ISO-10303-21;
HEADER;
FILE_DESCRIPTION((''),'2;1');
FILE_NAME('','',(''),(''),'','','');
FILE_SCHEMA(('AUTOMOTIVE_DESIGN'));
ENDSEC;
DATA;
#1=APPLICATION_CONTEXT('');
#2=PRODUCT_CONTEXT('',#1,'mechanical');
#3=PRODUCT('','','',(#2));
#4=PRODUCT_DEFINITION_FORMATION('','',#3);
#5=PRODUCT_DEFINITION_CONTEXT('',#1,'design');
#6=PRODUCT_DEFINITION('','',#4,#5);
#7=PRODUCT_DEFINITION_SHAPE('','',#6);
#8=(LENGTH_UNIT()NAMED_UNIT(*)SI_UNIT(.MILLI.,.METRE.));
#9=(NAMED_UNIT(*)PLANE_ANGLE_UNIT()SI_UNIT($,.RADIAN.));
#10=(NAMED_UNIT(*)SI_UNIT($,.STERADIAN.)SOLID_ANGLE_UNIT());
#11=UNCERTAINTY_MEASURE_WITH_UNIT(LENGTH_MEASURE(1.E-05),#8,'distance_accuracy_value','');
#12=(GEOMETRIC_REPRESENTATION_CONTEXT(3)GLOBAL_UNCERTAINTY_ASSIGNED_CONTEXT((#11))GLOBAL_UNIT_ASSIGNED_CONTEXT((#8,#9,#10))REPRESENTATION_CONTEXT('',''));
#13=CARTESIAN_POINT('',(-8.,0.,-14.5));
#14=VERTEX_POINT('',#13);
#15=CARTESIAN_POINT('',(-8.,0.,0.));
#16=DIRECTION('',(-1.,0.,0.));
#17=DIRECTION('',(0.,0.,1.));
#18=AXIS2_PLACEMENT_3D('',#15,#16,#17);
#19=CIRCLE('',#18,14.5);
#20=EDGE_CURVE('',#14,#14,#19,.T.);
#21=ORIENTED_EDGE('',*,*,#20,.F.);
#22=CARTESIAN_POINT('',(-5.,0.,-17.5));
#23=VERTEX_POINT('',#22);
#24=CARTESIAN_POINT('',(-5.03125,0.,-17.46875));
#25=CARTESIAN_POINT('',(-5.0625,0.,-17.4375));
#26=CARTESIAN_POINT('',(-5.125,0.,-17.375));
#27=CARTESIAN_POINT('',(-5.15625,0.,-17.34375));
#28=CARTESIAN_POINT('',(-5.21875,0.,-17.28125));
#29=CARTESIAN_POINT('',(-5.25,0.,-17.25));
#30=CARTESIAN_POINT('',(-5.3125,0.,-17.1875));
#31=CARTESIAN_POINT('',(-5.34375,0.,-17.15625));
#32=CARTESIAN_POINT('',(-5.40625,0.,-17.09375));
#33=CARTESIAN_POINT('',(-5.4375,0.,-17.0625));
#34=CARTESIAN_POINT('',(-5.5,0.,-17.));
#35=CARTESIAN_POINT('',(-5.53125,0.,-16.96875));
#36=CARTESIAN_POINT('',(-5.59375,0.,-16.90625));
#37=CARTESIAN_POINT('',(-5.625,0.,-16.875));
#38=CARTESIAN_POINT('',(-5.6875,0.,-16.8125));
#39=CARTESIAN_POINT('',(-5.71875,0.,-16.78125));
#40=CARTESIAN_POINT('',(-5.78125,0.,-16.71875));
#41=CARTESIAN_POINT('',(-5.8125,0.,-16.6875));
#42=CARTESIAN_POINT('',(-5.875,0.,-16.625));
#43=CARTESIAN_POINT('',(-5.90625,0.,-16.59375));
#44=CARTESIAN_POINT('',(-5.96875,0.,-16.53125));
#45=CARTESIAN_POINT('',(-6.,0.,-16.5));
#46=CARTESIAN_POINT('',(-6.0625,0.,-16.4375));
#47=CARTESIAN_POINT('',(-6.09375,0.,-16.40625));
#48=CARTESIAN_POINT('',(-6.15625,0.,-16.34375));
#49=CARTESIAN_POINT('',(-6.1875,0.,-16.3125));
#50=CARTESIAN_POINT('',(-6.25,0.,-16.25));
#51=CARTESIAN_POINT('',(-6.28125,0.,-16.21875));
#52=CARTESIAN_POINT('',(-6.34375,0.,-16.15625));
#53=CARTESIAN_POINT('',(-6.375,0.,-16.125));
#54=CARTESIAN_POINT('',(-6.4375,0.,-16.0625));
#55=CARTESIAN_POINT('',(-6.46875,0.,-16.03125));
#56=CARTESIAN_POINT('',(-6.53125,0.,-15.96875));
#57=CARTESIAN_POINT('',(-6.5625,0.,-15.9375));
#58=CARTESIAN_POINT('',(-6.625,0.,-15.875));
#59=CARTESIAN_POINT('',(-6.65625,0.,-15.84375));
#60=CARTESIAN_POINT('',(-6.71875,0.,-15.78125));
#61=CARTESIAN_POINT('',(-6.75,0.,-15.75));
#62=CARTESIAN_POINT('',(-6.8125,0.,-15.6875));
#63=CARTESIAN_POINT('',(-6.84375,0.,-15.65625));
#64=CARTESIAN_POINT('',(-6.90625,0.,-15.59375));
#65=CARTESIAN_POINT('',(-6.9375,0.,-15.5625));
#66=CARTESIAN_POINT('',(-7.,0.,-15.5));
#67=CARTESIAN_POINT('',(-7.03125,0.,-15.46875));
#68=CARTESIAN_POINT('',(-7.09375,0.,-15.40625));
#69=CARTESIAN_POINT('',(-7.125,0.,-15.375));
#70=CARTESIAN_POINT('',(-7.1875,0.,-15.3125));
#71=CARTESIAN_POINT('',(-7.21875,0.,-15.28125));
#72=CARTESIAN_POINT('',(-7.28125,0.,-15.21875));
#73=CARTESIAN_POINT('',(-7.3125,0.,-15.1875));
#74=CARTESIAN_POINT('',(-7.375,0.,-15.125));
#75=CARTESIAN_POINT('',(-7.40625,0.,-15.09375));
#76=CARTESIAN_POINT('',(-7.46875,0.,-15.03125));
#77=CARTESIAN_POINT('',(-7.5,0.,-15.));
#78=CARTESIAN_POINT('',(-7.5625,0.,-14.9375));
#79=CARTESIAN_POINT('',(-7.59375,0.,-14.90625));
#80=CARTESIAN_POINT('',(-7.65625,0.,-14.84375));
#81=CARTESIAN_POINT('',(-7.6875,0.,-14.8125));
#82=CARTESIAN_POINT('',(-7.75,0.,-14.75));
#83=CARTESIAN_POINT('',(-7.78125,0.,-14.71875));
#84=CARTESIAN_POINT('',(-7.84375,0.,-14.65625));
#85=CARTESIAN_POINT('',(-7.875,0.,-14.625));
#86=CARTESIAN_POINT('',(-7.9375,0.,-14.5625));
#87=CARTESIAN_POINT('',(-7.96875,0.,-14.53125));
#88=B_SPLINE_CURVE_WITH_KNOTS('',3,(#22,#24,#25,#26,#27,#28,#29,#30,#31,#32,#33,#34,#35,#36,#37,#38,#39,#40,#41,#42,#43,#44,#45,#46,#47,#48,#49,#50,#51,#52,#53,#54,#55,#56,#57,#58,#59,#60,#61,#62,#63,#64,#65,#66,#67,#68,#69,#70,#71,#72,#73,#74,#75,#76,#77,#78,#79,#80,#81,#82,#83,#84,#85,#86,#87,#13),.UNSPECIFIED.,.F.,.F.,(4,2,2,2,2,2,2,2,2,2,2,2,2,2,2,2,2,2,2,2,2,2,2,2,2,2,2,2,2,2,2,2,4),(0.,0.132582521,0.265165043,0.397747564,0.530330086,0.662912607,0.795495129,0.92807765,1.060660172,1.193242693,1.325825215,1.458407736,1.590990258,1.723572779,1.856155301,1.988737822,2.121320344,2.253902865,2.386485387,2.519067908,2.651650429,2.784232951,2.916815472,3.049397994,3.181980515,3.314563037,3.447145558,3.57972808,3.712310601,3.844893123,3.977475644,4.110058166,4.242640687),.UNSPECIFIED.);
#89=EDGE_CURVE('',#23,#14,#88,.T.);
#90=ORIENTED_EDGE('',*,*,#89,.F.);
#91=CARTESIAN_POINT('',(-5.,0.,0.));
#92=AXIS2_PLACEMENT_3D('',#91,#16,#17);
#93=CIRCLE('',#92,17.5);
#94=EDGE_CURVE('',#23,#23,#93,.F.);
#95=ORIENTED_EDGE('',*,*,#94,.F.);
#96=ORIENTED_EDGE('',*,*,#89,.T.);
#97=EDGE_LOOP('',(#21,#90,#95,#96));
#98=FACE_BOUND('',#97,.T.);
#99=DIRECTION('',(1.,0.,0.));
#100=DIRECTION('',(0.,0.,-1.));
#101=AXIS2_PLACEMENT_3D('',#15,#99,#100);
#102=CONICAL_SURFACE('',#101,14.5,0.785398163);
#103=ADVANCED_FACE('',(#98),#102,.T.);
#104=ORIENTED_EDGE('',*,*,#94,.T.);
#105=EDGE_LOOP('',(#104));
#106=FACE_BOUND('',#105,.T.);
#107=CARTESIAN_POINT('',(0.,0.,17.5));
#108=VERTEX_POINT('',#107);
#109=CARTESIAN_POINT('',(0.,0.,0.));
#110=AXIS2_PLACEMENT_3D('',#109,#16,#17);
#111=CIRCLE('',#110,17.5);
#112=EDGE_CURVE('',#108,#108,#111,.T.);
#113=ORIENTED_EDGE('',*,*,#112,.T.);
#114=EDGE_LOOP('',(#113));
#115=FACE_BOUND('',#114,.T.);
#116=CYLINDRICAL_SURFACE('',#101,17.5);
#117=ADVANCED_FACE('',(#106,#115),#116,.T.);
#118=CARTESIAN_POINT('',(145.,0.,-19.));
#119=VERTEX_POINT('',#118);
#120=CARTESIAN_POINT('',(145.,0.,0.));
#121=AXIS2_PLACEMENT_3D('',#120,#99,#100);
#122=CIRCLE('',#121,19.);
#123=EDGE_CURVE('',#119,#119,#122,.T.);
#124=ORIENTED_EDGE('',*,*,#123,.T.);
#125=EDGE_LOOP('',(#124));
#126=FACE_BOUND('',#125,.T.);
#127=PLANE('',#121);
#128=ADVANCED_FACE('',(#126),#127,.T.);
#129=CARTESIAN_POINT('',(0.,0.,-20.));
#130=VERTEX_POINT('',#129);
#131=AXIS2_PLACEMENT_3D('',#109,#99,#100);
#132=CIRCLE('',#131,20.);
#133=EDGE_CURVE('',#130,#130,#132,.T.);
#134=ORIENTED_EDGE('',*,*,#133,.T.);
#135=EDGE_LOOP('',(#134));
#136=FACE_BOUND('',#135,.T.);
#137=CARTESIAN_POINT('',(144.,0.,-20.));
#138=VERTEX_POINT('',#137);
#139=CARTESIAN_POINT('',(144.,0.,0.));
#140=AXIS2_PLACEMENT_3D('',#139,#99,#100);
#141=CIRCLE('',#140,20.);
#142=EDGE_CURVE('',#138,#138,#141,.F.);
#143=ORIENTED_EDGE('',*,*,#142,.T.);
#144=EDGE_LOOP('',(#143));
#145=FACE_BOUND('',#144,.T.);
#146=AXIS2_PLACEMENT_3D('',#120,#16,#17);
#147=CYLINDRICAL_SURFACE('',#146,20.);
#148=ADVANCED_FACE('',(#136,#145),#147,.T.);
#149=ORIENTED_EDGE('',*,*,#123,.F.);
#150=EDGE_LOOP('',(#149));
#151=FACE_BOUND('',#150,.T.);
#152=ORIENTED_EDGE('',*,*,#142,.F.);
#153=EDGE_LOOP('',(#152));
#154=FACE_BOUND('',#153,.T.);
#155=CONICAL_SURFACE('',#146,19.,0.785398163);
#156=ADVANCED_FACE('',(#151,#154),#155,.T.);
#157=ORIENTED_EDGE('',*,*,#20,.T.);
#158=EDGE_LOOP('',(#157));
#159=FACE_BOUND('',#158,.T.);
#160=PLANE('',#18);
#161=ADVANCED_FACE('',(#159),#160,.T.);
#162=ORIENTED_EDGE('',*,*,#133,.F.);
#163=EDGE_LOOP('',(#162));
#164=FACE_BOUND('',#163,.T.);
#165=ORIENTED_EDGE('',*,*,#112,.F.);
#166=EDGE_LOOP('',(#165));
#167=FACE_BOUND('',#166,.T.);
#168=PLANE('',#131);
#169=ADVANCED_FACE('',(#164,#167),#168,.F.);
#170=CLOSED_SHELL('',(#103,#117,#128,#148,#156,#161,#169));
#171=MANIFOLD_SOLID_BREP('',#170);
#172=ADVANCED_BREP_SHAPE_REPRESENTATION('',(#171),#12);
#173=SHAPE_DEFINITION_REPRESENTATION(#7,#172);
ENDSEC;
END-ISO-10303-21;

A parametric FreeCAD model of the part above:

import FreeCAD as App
import Part
import Sketcher
from FreeCAD import Vector


def edges_at(feature, points):
    """Names of the edges that pass closest to the given points."""
    edges = feature.Shape.Edges
    near = lambda p: min(range(len(edges)), key=lambda i: edges[i].distToShape(Part.Vertex(*p))[0])
    return sorted({f"Edge{near(p) + 1}" for p in points})

doc = App.newDocument("Part")
body = doc.addObject("PartDesign::Body", "Body")

sketch1 = body.newObject("Sketcher::SketchObject", "Sketch")
sketch1.AttachmentSupport = (doc.getObject("YZ_Plane"), [""])
sketch1.MapMode = "FlatFace"
sketch1.addGeometry(Part.Circle(Vector(0, 0, 0), Vector(0, 0, 1), 20), False)
sketch1.addConstraint(Sketcher.Constraint("Coincident", 0, 3, -1, 1))
sketch1.addConstraint(Sketcher.Constraint("Diameter", 0, 40.0))
pad1 = body.newObject("PartDesign::Pad", "Pad")
pad1.Profile = sketch1
pad1.Length = 145

sketch2 = body.newObject("Sketcher::SketchObject", "Sketch001")
sketch2.AttachmentSupport = (doc.getObject("YZ_Plane"), [""])
sketch2.MapMode = "FlatFace"
sketch2.addGeometry(Part.Circle(Vector(0, 0, 0), Vector(0, 0, 1), 18), False)
sketch2.addConstraint(Sketcher.Constraint("Coincident", 0, 3, -1, 1))
sketch2.addConstraint(Sketcher.Constraint("Diameter", 0, 35.0))
pad2 = body.newObject("PartDesign::Pad", "Pad001")
pad2.Profile = sketch2
pad2.Length = 8
pad2.Reversed = True
doc.recompute()

chamfer = body.newObject("PartDesign::Chamfer", "Chamfer")
chamfer.Base = (pad2, edges_at(pad2, [(-8, 0, -17.5)]))
chamfer.Size = 3
doc.recompute()

chamfer2 = body.newObject("PartDesign::Chamfer", "Chamfer001")
chamfer2.Base = (chamfer, edges_at(chamfer, [(145, 0, 20)]))
chamfer2.Size = 1

doc.recompute()
